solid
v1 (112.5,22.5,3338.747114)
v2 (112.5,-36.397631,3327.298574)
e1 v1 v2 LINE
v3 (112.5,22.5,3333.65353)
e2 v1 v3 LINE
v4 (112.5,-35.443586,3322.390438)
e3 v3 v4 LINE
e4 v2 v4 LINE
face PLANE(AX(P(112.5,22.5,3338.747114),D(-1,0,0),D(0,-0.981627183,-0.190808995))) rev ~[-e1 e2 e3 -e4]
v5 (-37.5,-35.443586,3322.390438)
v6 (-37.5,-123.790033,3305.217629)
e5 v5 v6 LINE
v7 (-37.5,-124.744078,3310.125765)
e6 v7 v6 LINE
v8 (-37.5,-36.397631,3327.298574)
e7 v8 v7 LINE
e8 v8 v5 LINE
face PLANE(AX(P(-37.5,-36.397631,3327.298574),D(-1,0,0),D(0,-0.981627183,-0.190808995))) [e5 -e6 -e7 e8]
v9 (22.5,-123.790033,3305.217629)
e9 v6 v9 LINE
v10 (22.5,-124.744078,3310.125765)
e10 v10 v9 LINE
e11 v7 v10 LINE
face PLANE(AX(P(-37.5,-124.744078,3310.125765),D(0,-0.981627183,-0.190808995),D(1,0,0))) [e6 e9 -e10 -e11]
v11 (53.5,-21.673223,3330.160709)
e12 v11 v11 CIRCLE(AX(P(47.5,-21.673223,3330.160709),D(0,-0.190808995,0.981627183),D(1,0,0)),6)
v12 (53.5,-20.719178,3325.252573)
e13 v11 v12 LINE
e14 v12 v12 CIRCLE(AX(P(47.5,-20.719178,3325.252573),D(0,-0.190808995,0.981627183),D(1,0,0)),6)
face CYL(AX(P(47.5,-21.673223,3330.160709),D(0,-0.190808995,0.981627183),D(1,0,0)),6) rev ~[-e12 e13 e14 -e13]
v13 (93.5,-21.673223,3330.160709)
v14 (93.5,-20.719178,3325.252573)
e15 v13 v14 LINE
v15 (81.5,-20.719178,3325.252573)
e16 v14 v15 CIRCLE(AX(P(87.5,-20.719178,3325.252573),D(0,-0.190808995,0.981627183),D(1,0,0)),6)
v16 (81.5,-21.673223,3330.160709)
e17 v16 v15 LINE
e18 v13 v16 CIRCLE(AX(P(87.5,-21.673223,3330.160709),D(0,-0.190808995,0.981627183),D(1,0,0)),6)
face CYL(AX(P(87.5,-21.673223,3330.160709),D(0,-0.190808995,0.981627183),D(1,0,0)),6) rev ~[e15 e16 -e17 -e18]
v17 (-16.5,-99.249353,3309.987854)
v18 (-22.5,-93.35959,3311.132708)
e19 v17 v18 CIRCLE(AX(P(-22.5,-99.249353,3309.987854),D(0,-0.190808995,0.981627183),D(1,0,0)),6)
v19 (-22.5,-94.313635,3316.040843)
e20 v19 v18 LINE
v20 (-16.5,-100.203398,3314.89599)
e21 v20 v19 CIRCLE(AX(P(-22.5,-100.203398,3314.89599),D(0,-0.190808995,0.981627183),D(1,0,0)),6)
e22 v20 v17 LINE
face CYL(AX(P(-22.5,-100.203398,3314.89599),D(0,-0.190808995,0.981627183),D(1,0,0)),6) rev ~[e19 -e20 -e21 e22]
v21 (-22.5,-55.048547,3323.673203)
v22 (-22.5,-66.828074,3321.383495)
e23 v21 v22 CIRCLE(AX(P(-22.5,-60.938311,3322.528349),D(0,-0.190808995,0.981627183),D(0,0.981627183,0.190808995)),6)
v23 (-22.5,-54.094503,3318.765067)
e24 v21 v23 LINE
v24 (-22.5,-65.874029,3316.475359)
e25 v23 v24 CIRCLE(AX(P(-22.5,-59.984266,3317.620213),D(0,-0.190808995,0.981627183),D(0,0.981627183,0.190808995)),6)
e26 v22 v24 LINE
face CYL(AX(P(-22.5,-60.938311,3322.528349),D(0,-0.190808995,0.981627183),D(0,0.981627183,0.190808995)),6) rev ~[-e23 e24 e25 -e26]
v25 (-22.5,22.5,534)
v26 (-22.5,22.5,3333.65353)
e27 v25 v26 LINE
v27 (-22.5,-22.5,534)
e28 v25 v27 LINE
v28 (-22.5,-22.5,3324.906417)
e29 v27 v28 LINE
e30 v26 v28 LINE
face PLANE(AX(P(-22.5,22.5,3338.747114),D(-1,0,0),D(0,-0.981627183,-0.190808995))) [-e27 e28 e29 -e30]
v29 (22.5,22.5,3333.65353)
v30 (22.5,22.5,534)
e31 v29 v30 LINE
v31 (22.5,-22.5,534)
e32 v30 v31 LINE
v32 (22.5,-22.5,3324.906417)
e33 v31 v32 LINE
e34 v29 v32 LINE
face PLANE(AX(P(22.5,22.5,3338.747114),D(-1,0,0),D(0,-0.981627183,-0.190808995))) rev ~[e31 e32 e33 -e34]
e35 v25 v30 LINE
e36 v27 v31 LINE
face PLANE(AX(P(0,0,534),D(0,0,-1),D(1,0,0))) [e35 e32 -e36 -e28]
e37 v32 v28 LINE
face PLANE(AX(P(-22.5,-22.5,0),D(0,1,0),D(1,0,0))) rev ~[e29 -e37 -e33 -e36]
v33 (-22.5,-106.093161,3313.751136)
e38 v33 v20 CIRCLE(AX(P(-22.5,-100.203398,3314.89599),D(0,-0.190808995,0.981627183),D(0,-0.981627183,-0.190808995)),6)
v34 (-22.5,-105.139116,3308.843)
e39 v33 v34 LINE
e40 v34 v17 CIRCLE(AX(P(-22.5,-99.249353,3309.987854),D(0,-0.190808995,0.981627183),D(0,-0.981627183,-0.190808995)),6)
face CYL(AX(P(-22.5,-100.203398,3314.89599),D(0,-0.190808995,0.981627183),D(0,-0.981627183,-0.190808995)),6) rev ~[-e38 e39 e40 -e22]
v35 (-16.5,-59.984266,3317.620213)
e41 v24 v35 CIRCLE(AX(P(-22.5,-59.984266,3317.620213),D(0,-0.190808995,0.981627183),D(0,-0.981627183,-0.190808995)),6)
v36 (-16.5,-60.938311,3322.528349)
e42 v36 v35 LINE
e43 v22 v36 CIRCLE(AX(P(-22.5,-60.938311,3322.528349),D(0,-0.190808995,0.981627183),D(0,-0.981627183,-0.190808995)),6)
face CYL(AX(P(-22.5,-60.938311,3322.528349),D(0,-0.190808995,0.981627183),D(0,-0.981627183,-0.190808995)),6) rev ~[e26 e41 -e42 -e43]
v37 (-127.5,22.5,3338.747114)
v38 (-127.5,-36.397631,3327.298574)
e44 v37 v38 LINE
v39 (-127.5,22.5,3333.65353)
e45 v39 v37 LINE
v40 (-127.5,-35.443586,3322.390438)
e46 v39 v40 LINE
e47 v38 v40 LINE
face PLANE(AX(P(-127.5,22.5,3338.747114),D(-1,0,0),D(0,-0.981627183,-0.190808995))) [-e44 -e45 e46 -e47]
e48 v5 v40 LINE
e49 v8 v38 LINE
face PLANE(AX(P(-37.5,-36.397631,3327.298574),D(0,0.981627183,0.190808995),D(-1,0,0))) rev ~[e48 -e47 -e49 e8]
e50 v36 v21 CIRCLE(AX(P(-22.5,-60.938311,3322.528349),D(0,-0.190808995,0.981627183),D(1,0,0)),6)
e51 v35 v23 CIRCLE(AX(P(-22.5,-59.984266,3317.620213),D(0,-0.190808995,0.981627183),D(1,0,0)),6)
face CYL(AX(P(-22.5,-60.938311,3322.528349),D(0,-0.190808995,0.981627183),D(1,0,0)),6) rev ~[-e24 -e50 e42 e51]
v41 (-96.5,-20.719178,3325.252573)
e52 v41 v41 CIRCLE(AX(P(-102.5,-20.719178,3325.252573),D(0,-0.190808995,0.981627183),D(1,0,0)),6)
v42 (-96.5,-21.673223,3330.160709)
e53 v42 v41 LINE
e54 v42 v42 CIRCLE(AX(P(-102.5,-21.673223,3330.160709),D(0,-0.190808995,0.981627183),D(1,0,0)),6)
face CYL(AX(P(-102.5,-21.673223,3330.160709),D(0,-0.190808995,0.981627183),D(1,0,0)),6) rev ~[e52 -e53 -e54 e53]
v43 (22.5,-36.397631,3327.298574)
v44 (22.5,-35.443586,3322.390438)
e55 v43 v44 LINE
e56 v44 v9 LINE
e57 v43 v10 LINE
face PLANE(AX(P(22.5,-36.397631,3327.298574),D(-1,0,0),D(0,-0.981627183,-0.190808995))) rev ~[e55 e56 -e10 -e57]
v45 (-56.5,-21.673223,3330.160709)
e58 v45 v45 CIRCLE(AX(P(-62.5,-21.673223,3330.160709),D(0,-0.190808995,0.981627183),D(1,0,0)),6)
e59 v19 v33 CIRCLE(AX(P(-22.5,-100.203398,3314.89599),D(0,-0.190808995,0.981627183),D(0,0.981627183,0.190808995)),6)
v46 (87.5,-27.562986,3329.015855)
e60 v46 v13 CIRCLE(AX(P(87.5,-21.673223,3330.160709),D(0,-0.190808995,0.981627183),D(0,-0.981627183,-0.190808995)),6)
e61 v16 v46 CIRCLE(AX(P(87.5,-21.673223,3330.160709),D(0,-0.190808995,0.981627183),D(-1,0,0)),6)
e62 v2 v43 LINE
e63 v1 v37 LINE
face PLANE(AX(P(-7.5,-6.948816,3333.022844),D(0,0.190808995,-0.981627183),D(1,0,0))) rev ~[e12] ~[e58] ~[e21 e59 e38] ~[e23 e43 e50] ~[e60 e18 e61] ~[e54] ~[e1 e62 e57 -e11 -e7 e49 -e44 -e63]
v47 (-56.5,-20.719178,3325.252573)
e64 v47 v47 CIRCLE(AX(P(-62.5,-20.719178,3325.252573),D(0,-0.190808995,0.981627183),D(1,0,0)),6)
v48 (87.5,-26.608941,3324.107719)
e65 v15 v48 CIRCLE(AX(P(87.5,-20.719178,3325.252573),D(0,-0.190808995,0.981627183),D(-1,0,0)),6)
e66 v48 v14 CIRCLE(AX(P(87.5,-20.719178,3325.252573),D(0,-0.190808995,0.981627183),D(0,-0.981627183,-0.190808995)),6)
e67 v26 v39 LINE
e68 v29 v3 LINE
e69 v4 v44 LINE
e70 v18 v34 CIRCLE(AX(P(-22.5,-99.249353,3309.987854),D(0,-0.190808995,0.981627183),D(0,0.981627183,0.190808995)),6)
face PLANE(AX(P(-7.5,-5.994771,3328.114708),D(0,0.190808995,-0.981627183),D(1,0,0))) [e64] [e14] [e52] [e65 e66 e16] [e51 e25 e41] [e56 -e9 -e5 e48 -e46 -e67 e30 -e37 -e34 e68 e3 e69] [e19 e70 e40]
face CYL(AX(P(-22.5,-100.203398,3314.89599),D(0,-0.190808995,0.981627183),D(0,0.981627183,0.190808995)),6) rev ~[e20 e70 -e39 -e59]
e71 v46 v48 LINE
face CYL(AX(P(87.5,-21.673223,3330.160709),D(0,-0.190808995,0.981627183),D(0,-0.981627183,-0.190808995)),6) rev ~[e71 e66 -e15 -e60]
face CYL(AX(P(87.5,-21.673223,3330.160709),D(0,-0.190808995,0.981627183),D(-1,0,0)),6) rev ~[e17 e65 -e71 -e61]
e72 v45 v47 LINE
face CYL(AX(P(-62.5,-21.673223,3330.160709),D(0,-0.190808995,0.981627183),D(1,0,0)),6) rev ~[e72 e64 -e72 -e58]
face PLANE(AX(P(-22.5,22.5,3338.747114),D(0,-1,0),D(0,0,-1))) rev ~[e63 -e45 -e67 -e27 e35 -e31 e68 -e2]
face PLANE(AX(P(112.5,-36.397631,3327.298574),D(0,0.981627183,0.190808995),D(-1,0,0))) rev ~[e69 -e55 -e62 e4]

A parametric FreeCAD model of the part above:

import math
import FreeCAD as App
import Part
import Sketcher
from FreeCAD import Vector
Q = App.Units.Quantity

doc = App.newDocument("Part")
body = doc.addObject("PartDesign::Body", "Body")

# Sketch on XY plane
sketch1 = doc.addObject("Sketcher::SketchObject", "Sketch")
body.addObject(sketch1)
sketch1.AttachmentSupport = (doc.XY_Plane, [""])
sketch1.MapMode = "FlatFace"
sketch1.addGeometry([
    Part.LineSegment(Vector(-22.5, 22.5, 0), Vector(-22.5, -22.5, 0)),
    Part.LineSegment(Vector(-22.5, -22.5, 0), Vector(22.5, -22.5, 0)),
    Part.LineSegment(Vector(22.5, -22.5, 0), Vector(22.5, 22.5, 0)),
    Part.LineSegment(Vector(22.5, 22.5, 0), Vector(-22.5, 22.5, 0)),
], False)
sketch1.addConstraint([
    Sketcher.Constraint("Coincident", 0, 2, 1, 1),
    Sketcher.Constraint("Coincident", 1, 2, 2, 1),
    Sketcher.Constraint("Coincident", 2, 2, 3, 1),
    Sketcher.Constraint("Coincident", 3, 2, 0, 1),
    Sketcher.Constraint("Vertical", 0),
    Sketcher.Constraint("Horizontal", 1),
    Sketcher.Constraint("Vertical", 2),
    Sketcher.Constraint("Horizontal", 3),
    Sketcher.Constraint("Symmetric", 0, 2, 2, 2, -1, 1),
    Sketcher.Constraint("Equal", 3, 0),
    Sketcher.Constraint("DistanceX", 1, 1, 1, 2, 45.0),
])
pad1 = doc.addObject("PartDesign::Pad", "Pad")
body.addObject(pad1)
pad1.Profile = sketch1
pad1.Length = 3330

# Sketch on an angled plane
sketch2 = doc.addObject("Sketcher::SketchObject", "Sketch001")
body.addObject(sketch2)
sketch2.Placement = App.Placement(Vector(0, -624.53916, 3212.975442), App.Rotation(Vector(1, 0, 0), Vector(0, -0.981627183, -0.190808995), Vector(0, 0.190808995, -0.981627183), "ZXY"))
sketch2.addGeometry([
    Part.LineSegment(Vector(-22.5, -613.307342, 0), Vector(-22.5, -659.149594, 0)),
    Part.LineSegment(Vector(-22.5, -659.149594, 0), Vector(22.5, -659.149594, 0)),
    Part.LineSegment(Vector(22.5, -659.149594, 0), Vector(22.5, -613.307342, 0)),
    Part.LineSegment(Vector(22.5, -613.307342, 0), Vector(-22.5, -613.307342, 0)),
], False)
sketch2.addConstraint([
    Sketcher.Constraint("Coincident", 0, 2, 1, 1),
    Sketcher.Constraint("Coincident", 1, 2, 2, 1),
    Sketcher.Constraint("Coincident", 2, 2, 3, 1),
    Sketcher.Constraint("Coincident", 3, 2, 0, 1),
    Sketcher.Constraint("Vertical", 0),
    Sketcher.Constraint("Horizontal", 1),
    Sketcher.Constraint("Vertical", 2),
    Sketcher.Constraint("Horizontal", 3),
    Sketcher.Constraint("DistanceX", 1, 1, 1, 2, 45.0),
    Sketcher.Constraint("DistanceX", 0, 2, -1, 1, 22.5),
    Sketcher.Constraint("DistanceY", 0, 2, 0, 1, 45.842251),
    Sketcher.Constraint("DistanceY", 0, 2, -1, 1, 659.149594),
])
pad2 = doc.addObject("PartDesign::Pad", "Pad001")
body.addObject(pad2)
pad2.Profile = sketch2
pad2.Length = 25

# Sketch on an angled plane
sketch3 = doc.addObject("Sketcher::SketchObject", "Sketch002")
body.addObject(sketch3)
sketch3.Placement = App.Placement(Vector(0, -624.53916, 3212.975442), App.Rotation(Vector(1, 0, 0), Vector(0, -0.981627183, -0.190808995), Vector(0, 0.190808995, -0.981627183), "ZXY"))
sketch3.addGeometry([
    Part.LineSegment(Vector(-127.5, -599.149594, 0), Vector(-127.5, -659.149594, 0)),  # 0
    Part.LineSegment(Vector(-127.5, -659.149594, 0), Vector(112.5, -659.149594, 0)),  # 1
    Part.LineSegment(Vector(112.5, -659.149594, 0), Vector(112.5, -599.149594, 0)),  # 2
    Part.LineSegment(Vector(112.5, -599.149594, 0), Vector(22.5, -599.149594, 0)),  # 3
    Part.LineSegment(Vector(22.5, -599.149594, 0), Vector(22.5, -509.149594, 0)),  # 4
    Part.LineSegment(Vector(22.5, -509.149594, 0), Vector(-37.5, -509.149594, 0)),  # 5
    Part.LineSegment(Vector(-37.5, -509.149594, 0), Vector(-37.5, -599.149594, 0)),  # 6
    Part.LineSegment(Vector(-37.5, -599.149594, 0), Vector(-127.5, -599.149594, 0)),  # 7
], False)
sketch3.addConstraint([
    Sketcher.Constraint("Coincident", 0, 2, 1, 1),
    Sketcher.Constraint("Coincident", 1, 2, 2, 1),
    Sketcher.Constraint("Coincident", 2, 2, 3, 1),
    Sketcher.Constraint("Coincident", 3, 2, 4, 1),
    Sketcher.Constraint("Coincident", 4, 2, 5, 1),
    Sketcher.Constraint("Coincident", 5, 2, 6, 1),
    Sketcher.Constraint("Coincident", 6, 2, 7, 1),
    Sketcher.Constraint("Coincident", 7, 2, 0, 1),
    Sketcher.Constraint("Vertical", 0),
    Sketcher.Constraint("Horizontal", 1),
    Sketcher.Constraint("Vertical", 2),
    Sketcher.Constraint("Horizontal", 3),
    Sketcher.Constraint("Vertical", 4),
    Sketcher.Constraint("Horizontal", 5),
    Sketcher.Constraint("Vertical", 6),
    Sketcher.Constraint("Horizontal", 7),
    Sketcher.Constraint("Horizontal", 3, 2, 6, 2),
    Sketcher.Constraint("Equal", 3, 7),
    Sketcher.Constraint("Equal", 5, 0),
    Sketcher.Constraint("Equal", 7, 4),
    Sketcher.Constraint("DistanceX", 1, 1, 1, 2, 240.0),
    Sketcher.Constraint("DistanceX", 3, 2, 3, 1, 90.0),
    Sketcher.Constraint("DistanceX", 0, 2, -1, 1, 127.5),
    Sketcher.Constraint("DistanceY", 0, 2, -1, 1, 659.149594),
])
pad3 = doc.addObject("PartDesign::Pad", "Pad002")
body.addObject(pad3)
pad3.Profile = sketch3
pad3.Length = 5

# Sketch on an angled plane
sketch4 = doc.addObject("Sketcher::SketchObject", "Sketch003")
body.addObject(sketch4)
sketch4.Placement = App.Placement(Vector(0, -624.53916, 3212.975442), App.Rotation(Vector(1, 0, 0), Vector(0, 0.981627183, 0.190808995), Vector(0, -0.190808995, 0.981627183), "ZXY"))
sketch4.addGeometry([
    Part.ArcOfCircle(Part.Circle(Vector(87.5, 614.149594, 0), Vector(0, 0, 1), 6), math.radians(180), math.radians(270)),  # 0
    Part.ArcOfCircle(Part.Circle(Vector(87.5, 614.149594, 0), Vector(0, 0, 1), 6), math.radians(-90), math.radians(0)),  # 1
    Part.ArcOfCircle(Part.Circle(Vector(87.5, 614.149594, 0), Vector(0, 0, 1), 6), math.radians(0), math.radians(180)),  # 2
    Part.Circle(Vector(47.5, 614.149594, 0), Vector(0, 0, 1), 6),  # 3
    Part.ArcOfCircle(Part.Circle(Vector(-22.5, 534.149594, 0), Vector(0, 0, 1), 6), math.radians(90), math.radians(270)),  # 4
    Part.ArcOfCircle(Part.Circle(Vector(-22.5, 534.149594, 0), Vector(0, 0, 1), 6), math.radians(-90), math.radians(0)),  # 5
    Part.ArcOfCircle(Part.Circle(Vector(-22.5, 534.149594, 0), Vector(0, 0, 1), 6), math.radians(0), math.radians(90)),  # 6
    Part.ArcOfCircle(Part.Circle(Vector(-22.5, 574.149594, 0), Vector(0, 0, 1), 6), math.radians(90), math.radians(270)),  # 7
    Part.ArcOfCircle(Part.Circle(Vector(-22.5, 574.149594, 0), Vector(0, 0, 1), 6), math.radians(-90), math.radians(0)),  # 8
    Part.ArcOfCircle(Part.Circle(Vector(-22.5, 574.149594, 0), Vector(0, 0, 1), 6), math.radians(0), math.radians(90)),  # 9
    Part.Circle(Vector(-62.5, 614.149594, 0), Vector(0, 0, 1), 6),  # 10
    Part.Circle(Vector(-102.5, 614.149594, 0), Vector(0, 0, 1), 6),  # 11
], False)
sketch4.addConstraint([
    Sketcher.Constraint("Tangent", 0, 2, 1, 1),
    Sketcher.Constraint("Tangent", 1, 2, 2, 1),
    Sketcher.Constraint("Tangent", 2, 2, 0, 1),
    Sketcher.Constraint("Tangent", 4, 2, 5, 1),
    Sketcher.Constraint("Tangent", 5, 2, 6, 1),
    Sketcher.Constraint("Tangent", 6, 2, 4, 1),
    Sketcher.Constraint("Tangent", 7, 2, 8, 1),
    Sketcher.Constraint("Tangent", 8, 2, 9, 1),
    Sketcher.Constraint("Tangent", 9, 2, 7, 1),
    Sketcher.Constraint("Equal", 2, 3),
    Sketcher.Constraint("Equal", 3, 4),
    Sketcher.Constraint("Equal", 6, 7),
    Sketcher.Constraint("Equal", 9, 10),
    Sketcher.Constraint("Equal", 10, 11),
    Sketcher.Constraint("Horizontal", 2, 3, 3, 3),
    Sketcher.Constraint("Horizontal", 3, 3, 10, 3),
    Sketcher.Constraint("Horizontal", 10, 3, 11, 3),
    Sketcher.Constraint("Horizontal", 11, 3, 1, 2),
    Sketcher.Constraint("Horizontal", 1, 2, 2, 2),
    Sketcher.Constraint("Horizontal", 6, 3, 5, 2),
    Sketcher.Constraint("Horizontal", 9, 3, 8, 2),
    Sketcher.Constraint("Vertical", 6, 3, 7, 3),
    Sketcher.Constraint("Vertical", 2, 3, 0, 2),
    Sketcher.Constraint("Vertical", 9, 3, 4, 2),
    Sketcher.Constraint("Vertical", 4, 2, 6, 2),
    Sketcher.Constraint("Vertical", 6, 2, 7, 2),
    Sketcher.Constraint("Vertical", 7, 2, 9, 2),
    Sketcher.Constraint("Diameter", 3, 12.0),
    Sketcher.Constraint("DistanceX", 3, 3, 0, 3, 40.0),
    Sketcher.Constraint("DistanceX", 4, 3, 3, 3, 70.0),
    Sketcher.Constraint("DistanceY", 4, 3, 3, 3, 80.0),
    Sketcher.Constraint("DistanceY", 4, 3, 7, 3, 40.0),
    Sketcher.Constraint("DistanceX", 10, 3, 7, 3, 40.0),
    Sketcher.Constraint("DistanceX", 11, 3, 10, 3, 40.0),
    Sketcher.Constraint("DistanceX", -1, 1, 0, 3, 87.5),
    Sketcher.Constraint("DistanceY", -1, 1, 0, 3, 614.149594),
])
pocket1 = doc.addObject("PartDesign::Pocket", "Pocket")
body.addObject(pocket1)
pocket1.Profile = sketch4
pocket1.Length = 25

# Sketch on XY plane
sketch5 = doc.addObject("Sketcher::SketchObject", "Sketch004")
body.addObject(sketch5)
sketch5.AttachmentSupport = (doc.XY_Plane, [""])
sketch5.MapMode = "FlatFace"
sketch5.addGeometry([
    Part.LineSegment(Vector(-22.5, 27.270225, 0), Vector(-22.5, 22.5, 0)),
    Part.LineSegment(Vector(-22.5, 22.5, 0), Vector(127.5, 22.5, 0)),
    Part.LineSegment(Vector(127.5, 22.5, 0), Vector(127.5, 27.270225, 0)),
    Part.LineSegment(Vector(127.5, 27.270225, 0), Vector(-22.5, 27.270225, 0)),
], False)
sketch5.addConstraint([
    Sketcher.Constraint("Coincident", 0, 2, 1, 1),
    Sketcher.Constraint("Coincident", 1, 2, 2, 1),
    Sketcher.Constraint("Coincident", 2, 2, 3, 1),
    Sketcher.Constraint("Coincident", 3, 2, 0, 1),
    Sketcher.Constraint("Vertical", 0),
    Sketcher.Constraint("Horizontal", 1),
    Sketcher.Constraint("Vertical", 2),
    Sketcher.Constraint("Horizontal", 3),
    Sketcher.Constraint("DistanceX", 1, 1, 1, 2, 150.0),
    Sketcher.Constraint("DistanceX", 0, 2, -1, 1, 22.5),
    Sketcher.Constraint("DistanceY", -1, 1, 0, 2, 22.5),
    Sketcher.Constraint("DistanceY", 0, 2, 0, 1, 4.770225),
])
pocket2 = doc.addObject("PartDesign::Pocket", "Pocket001")
body.addObject(pocket2)
pocket2.Profile = sketch5
pocket2.Length = 3358.687162
pocket2.Reversed = True

# Sketch on YZ plane
sketch6 = doc.addObject("Sketcher::SketchObject", "Sketch005")
body.addObject(sketch6)
sketch6.AttachmentSupport = (doc.YZ_Plane, [""])
sketch6.MapMode = "FlatFace"
sketch6.AttachmentOffset = App.Placement(Vector(0, 0, -22.5), App.Rotation())
sketch6.addGeometry([
    Part.LineSegment(Vector(22.5, 3338.747114, 0), Vector(22.5, 3333.65353, 0)),
    Part.LineSegment(Vector(22.5, 3333.65353, 0), Vector(23.454045, 3333.838978, 0)),
    Part.LineSegment(Vector(23.454045, 3333.838978, 0), Vector(22.5, 3338.747114, 0)),
], False)
sketch6.addConstraint([
    Sketcher.Constraint("Coincident", 0, 2, 1, 1),
    Sketcher.Constraint("Coincident", 1, 2, 2, 1),
    Sketcher.Constraint("Coincident", 2, 2, 0, 1),
    Sketcher.Constraint("Vertical", 0),
    Sketcher.Constraint("Perpendicular", 1, 2),
    Sketcher.Constraint("Angle", 1, Q("11 deg")),
    Sketcher.Constraint("Distance", 2, 5.0),
    Sketcher.Constraint("DistanceX", -1, 1, 0, 2, 22.5),
    Sketcher.Constraint("DistanceY", -1, 1, 0, 2, 3333.65353),
])
pocket3 = doc.addObject("PartDesign::Pocket", "Pocket002")
body.addObject(pocket3)
pocket3.Profile = sketch6
pocket3.Length = 106.2

# Sketch on XY plane
sketch7 = doc.addObject("Sketcher::SketchObject", "Sketch006")
body.addObject(sketch7)
sketch7.AttachmentSupport = (doc.XY_Plane, [""])
sketch7.MapMode = "FlatFace"
sketch7.addGeometry([
    Part.LineSegment(Vector(-22.5, -22.5, 0), Vector(-22.5, 22.5, 0)),
    Part.LineSegment(Vector(-22.5, 22.5, 0), Vector(22.5, 22.5, 0)),
    Part.LineSegment(Vector(22.5, 22.5, 0), Vector(22.5, -22.5, 0)),
    Part.LineSegment(Vector(22.5, -22.5, 0), Vector(-22.5, -22.5, 0)),
], False)
sketch7.addConstraint([
    Sketcher.Constraint("Coincident", 0, 2, 1, 1),
    Sketcher.Constraint("Coincident", 1, 2, 2, 1),
    Sketcher.Constraint("Coincident", 2, 2, 3, 1),
    Sketcher.Constraint("Coincident", 3, 2, 0, 1),
    Sketcher.Constraint("Vertical", 0),
    Sketcher.Constraint("Horizontal", 1),
    Sketcher.Constraint("Vertical", 2),
    Sketcher.Constraint("Horizontal", 3),
    Sketcher.Constraint("Symmetric", 0, 2, 2, 2, -1, 1),
    Sketcher.Constraint("Equal", 3, 0),
    Sketcher.Constraint("DistanceX", 1, 1, 1, 2, 45.0),
])
pocket4 = doc.addObject("PartDesign::Pocket", "Pocket003")
body.addObject(pocket4)
pocket4.Profile = sketch7
pocket4.Length = 534
pocket4.Reversed = True

doc.recompute()
